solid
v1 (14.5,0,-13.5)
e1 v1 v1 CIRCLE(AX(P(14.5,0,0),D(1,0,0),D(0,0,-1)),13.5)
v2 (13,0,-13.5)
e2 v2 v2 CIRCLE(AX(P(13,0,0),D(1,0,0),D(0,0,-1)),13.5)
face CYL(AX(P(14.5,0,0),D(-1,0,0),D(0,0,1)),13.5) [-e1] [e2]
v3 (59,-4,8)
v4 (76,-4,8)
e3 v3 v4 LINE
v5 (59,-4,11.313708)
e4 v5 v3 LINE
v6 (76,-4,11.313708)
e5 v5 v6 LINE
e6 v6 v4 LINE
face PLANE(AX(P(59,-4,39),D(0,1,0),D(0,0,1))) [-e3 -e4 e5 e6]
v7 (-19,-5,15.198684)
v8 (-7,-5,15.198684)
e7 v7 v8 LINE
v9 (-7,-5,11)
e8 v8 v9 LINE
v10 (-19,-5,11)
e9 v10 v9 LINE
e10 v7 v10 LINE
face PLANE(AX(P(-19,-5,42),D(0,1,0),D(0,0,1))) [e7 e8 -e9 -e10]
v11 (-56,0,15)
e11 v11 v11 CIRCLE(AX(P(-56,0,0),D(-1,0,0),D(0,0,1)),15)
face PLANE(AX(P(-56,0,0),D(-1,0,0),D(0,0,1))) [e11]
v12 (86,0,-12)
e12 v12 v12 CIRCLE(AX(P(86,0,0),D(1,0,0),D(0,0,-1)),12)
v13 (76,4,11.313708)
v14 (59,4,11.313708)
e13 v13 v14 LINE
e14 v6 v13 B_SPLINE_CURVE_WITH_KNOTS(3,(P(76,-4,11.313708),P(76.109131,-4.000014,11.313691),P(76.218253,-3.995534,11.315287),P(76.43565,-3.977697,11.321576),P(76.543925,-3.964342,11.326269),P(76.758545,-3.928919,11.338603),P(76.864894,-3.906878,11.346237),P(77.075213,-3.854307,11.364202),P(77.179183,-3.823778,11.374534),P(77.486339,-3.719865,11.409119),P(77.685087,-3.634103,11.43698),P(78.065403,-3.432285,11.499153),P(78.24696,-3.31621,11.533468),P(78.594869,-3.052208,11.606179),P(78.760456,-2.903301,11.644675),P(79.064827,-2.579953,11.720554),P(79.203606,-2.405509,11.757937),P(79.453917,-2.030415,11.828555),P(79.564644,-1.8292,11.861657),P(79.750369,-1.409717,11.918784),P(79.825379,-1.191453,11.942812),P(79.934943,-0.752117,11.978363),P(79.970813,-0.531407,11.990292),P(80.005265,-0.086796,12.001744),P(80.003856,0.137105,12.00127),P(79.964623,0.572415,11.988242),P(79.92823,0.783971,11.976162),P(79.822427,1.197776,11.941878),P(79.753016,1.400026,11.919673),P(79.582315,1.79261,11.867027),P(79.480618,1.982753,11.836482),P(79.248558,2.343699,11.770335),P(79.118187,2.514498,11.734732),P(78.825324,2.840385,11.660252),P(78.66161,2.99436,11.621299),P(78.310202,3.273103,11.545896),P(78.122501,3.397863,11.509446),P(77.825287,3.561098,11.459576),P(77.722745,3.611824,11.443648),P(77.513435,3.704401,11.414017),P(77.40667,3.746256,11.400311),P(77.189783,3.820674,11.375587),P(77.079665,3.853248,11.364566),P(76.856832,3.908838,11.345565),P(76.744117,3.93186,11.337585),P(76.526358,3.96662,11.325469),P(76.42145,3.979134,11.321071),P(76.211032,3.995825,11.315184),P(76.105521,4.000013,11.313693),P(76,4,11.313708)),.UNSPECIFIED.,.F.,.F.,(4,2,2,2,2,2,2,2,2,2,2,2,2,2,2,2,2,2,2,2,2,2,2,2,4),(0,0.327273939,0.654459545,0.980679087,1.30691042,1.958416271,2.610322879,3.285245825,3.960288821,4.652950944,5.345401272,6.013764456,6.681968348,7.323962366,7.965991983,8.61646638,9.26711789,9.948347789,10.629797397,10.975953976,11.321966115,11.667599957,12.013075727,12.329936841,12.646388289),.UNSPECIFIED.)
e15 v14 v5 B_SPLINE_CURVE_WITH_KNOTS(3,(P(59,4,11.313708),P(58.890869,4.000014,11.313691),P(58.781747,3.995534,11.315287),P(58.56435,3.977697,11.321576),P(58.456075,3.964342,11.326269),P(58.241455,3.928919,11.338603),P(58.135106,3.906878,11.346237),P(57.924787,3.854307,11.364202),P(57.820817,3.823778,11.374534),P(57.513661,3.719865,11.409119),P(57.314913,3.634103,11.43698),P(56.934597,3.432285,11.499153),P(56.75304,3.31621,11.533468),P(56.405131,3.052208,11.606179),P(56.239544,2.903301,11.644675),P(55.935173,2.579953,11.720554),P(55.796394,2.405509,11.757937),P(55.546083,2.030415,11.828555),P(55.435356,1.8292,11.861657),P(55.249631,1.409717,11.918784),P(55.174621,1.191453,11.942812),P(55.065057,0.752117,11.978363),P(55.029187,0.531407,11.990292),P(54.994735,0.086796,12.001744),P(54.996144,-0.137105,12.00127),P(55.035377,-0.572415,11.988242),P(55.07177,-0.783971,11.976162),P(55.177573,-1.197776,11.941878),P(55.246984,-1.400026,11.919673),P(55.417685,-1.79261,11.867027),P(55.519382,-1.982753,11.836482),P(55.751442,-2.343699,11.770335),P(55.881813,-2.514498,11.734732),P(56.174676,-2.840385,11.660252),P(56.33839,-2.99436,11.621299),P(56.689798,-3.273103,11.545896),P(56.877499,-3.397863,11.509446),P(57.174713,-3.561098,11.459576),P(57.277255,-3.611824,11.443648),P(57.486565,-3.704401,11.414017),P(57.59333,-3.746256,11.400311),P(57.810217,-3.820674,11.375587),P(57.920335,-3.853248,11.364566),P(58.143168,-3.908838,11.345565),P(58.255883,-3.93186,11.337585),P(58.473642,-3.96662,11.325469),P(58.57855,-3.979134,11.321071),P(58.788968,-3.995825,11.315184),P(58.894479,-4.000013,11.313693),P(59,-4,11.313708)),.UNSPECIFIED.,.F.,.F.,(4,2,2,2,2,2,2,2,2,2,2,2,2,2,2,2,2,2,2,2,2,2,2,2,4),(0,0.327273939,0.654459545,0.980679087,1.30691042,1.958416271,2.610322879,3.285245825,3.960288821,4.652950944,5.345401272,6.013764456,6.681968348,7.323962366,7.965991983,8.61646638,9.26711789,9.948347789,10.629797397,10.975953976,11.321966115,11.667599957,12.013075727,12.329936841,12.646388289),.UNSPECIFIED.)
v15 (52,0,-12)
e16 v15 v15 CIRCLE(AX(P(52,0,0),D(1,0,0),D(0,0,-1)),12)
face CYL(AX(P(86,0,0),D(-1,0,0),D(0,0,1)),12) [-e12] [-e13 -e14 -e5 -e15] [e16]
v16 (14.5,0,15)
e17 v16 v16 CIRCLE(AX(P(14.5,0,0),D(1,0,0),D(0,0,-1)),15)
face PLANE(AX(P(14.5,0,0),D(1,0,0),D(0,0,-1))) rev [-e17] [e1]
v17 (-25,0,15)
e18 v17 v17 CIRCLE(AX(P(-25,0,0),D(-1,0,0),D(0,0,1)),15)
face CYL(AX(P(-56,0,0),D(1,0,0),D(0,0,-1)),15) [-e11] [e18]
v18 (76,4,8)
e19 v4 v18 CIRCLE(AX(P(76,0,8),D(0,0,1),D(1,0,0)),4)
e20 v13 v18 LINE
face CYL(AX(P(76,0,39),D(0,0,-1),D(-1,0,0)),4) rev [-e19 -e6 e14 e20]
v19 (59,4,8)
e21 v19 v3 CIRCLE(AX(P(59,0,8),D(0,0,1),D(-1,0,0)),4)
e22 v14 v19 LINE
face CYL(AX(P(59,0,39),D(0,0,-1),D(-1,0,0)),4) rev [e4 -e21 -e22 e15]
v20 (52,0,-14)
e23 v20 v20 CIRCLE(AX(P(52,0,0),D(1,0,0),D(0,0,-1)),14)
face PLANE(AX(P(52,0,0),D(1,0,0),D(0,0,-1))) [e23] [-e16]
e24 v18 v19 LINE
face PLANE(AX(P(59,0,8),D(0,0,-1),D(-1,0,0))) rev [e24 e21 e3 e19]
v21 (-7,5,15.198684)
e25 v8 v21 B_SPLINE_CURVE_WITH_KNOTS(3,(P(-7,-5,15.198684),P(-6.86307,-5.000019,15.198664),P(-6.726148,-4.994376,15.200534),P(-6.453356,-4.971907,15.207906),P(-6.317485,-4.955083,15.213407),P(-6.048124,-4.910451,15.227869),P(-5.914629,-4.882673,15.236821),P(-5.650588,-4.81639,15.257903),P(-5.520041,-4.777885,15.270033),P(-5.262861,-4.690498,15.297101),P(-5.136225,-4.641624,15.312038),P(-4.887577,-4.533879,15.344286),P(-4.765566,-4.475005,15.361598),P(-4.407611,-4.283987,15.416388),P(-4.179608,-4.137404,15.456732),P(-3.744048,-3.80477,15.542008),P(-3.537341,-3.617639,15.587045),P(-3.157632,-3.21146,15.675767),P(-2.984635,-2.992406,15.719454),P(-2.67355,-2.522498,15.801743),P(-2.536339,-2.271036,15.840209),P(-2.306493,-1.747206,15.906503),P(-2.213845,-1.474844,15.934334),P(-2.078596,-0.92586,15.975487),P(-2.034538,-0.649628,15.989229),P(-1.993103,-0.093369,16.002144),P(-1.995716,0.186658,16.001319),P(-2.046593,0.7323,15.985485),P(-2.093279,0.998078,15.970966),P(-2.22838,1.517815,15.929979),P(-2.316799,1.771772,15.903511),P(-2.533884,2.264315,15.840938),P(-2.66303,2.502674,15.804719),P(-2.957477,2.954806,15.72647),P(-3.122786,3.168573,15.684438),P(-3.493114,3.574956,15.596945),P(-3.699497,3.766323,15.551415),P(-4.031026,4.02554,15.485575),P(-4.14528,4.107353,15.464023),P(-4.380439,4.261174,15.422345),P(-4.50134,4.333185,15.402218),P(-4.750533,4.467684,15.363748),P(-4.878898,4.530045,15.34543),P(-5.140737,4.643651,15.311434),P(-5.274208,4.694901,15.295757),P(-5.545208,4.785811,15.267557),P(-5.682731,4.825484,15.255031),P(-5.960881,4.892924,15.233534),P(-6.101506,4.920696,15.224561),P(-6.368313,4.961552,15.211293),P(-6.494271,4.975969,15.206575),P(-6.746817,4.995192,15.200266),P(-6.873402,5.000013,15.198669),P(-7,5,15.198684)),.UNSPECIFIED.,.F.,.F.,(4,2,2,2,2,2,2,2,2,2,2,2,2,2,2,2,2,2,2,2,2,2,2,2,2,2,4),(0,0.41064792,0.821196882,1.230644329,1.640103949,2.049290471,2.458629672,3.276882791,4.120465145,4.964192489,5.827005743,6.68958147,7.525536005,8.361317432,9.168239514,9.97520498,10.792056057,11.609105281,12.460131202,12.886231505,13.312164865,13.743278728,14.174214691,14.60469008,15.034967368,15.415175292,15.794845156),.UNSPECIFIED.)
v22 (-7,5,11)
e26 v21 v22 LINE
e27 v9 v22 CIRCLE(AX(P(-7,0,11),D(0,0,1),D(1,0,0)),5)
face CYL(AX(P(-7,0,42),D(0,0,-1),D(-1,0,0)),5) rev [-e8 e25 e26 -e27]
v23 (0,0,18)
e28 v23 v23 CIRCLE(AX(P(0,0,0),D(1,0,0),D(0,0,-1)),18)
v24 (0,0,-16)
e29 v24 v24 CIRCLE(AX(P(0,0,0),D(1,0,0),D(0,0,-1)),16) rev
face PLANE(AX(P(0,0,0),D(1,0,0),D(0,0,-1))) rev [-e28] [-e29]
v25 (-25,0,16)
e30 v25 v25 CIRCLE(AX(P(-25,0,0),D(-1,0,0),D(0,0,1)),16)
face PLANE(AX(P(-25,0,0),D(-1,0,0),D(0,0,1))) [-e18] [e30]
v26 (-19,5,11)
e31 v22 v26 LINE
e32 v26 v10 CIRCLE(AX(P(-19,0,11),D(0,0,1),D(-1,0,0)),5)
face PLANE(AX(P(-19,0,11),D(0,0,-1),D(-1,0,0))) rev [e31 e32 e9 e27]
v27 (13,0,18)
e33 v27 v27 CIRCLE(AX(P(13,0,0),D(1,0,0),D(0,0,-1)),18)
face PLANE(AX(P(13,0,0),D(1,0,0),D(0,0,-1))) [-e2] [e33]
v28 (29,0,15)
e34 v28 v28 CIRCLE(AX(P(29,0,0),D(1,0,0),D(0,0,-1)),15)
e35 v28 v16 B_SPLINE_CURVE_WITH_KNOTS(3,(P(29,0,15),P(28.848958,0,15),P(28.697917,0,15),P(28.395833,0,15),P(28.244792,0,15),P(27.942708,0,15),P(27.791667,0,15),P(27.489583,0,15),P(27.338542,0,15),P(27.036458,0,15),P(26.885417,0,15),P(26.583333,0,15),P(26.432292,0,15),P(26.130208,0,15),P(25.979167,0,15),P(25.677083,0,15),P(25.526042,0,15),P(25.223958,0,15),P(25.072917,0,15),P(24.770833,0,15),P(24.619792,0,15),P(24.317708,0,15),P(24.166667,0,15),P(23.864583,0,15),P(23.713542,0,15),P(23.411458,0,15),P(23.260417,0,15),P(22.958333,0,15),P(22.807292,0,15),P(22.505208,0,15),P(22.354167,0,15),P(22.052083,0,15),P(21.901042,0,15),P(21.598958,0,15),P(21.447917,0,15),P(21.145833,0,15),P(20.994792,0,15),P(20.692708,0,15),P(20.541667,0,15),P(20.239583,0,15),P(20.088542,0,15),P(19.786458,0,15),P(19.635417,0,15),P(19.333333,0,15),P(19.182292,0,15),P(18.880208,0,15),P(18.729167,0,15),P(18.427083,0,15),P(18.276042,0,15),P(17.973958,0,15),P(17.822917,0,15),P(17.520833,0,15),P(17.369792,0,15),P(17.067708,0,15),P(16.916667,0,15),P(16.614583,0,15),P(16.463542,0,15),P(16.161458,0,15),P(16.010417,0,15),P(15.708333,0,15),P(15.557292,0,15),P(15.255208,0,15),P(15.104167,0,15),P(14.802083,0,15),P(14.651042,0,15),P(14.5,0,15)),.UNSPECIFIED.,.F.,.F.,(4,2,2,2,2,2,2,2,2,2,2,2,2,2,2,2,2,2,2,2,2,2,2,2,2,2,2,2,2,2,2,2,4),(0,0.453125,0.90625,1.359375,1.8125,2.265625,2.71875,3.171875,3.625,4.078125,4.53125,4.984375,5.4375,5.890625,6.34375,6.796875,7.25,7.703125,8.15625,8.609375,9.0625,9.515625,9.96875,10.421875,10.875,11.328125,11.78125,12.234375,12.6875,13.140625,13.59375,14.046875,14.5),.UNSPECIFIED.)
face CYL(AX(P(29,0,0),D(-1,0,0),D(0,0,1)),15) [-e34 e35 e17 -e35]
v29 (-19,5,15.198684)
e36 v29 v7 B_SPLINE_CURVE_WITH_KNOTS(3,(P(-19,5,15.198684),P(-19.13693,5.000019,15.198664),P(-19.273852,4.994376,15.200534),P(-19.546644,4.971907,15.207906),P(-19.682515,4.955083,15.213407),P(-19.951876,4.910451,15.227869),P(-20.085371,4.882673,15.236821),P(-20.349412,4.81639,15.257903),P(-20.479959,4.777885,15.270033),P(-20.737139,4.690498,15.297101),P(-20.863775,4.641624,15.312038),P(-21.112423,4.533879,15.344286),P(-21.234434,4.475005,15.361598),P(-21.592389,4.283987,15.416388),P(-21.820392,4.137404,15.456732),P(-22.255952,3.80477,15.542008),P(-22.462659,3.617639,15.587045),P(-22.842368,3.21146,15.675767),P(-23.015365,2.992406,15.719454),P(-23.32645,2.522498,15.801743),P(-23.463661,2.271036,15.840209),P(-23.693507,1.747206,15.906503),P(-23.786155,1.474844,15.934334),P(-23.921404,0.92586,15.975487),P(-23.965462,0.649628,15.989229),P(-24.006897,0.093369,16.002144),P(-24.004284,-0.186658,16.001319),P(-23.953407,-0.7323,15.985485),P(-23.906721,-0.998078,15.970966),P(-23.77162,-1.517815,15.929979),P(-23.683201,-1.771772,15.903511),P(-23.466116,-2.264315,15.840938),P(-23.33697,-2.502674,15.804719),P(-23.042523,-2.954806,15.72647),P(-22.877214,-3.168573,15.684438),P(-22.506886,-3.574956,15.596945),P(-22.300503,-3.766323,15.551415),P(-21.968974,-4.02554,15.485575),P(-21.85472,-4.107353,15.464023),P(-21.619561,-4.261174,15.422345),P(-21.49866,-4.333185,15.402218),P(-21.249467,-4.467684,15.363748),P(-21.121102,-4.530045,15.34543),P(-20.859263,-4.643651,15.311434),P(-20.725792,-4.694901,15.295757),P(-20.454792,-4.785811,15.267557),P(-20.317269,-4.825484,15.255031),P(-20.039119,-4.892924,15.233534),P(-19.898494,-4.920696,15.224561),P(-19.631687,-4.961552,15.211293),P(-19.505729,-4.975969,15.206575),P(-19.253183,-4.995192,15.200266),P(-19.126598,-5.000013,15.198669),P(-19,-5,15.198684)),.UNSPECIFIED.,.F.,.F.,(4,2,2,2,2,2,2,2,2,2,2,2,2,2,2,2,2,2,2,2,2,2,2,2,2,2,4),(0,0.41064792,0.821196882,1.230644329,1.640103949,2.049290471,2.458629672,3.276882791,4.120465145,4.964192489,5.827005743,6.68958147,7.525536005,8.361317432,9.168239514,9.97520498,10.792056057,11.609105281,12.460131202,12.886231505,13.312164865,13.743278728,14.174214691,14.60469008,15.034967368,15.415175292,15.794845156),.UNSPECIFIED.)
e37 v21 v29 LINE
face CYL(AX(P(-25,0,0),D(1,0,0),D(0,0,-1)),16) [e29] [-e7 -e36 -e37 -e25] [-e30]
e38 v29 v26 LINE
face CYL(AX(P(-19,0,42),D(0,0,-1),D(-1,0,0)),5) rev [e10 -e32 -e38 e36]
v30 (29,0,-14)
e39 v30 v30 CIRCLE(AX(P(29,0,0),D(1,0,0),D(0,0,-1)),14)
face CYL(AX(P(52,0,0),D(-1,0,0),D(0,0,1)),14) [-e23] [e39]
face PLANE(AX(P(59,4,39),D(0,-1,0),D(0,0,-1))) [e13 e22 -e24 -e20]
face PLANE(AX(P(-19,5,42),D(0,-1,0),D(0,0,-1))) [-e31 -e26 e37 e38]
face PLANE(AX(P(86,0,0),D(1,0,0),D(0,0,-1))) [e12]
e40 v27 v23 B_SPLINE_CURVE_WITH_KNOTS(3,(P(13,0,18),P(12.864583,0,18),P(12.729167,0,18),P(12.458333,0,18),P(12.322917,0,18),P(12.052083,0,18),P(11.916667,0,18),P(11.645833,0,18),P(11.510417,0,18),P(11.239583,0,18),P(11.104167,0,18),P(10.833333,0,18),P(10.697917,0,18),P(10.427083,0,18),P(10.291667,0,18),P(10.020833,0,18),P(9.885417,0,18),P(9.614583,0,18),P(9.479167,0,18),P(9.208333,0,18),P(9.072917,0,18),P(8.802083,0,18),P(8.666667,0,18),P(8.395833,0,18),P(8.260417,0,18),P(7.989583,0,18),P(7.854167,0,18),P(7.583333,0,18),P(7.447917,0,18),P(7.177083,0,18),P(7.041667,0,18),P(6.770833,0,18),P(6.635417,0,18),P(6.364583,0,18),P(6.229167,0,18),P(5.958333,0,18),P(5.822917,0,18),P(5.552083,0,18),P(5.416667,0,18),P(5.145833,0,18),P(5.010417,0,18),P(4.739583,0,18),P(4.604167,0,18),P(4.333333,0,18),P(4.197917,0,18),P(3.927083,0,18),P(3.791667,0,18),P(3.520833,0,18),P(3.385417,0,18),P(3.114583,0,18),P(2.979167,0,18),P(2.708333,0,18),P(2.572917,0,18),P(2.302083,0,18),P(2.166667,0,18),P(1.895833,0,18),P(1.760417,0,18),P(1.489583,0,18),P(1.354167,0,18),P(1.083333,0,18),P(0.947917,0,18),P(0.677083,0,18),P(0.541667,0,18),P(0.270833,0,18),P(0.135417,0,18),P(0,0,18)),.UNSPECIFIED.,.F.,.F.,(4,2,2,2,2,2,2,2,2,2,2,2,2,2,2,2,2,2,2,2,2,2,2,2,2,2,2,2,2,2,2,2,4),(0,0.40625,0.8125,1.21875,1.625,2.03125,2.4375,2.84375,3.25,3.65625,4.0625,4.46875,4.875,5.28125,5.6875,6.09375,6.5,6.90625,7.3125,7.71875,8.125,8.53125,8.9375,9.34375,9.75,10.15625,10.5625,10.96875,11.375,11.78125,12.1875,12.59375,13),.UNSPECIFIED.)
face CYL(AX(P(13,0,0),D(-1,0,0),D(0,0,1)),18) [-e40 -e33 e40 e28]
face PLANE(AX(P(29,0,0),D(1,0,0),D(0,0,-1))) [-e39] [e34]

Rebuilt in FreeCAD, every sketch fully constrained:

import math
import FreeCAD as App
import Part
import Sketcher
Q = App.Units.Quantity

doc = App.newDocument("Part")
body = doc.addObject("PartDesign::Body", "Body")

# Sketch on YZ plane
sketch1 = body.newObject("Sketcher::SketchObject", "Sketch")
sketch1.AttachmentSupport = (doc.getObject("YZ_Plane"), [""])
sketch1.MapMode = "FlatFace"
sketch1.addGeometry(Part.Circle(App.Vector(0, 0, 0), App.Vector(0, 0, 1), 18), False)
sketch1.addConstraint(Sketcher.Constraint("Coincident", 0, 3, -1, 1))
sketch1.addConstraint(Sketcher.Constraint("Diameter", 0, Q("36 mm")))
pad1 = body.newObject("PartDesign::Pad", "Pad")
pad1.Profile = sketch1
pad1.Length = 13

# Sketch on YZ plane
sketch2 = body.newObject("Sketcher::SketchObject", "Sketch001")
sketch2.AttachmentSupport = (doc.getObject("YZ_Plane"), [""])
sketch2.MapMode = "FlatFace"
sketch2.AttachmentOffset = App.Placement(App.Vector(0, 0, 13), App.Rotation())
sketch2.addGeometry(Part.Circle(App.Vector(0, 0, 0), App.Vector(0, 0, 1), 14), False)
sketch2.addConstraint(Sketcher.Constraint("Coincident", 0, 3, -1, 1))
sketch2.addConstraint(Sketcher.Constraint("Diameter", 0, Q("27 mm")))
pad2 = body.newObject("PartDesign::Pad", "Pad001")
pad2.Profile = sketch2
pad2.Length = 1.5

# Sketch on YZ plane
sketch3 = body.newObject("Sketcher::SketchObject", "Sketch002")
sketch3.AttachmentSupport = (doc.getObject("YZ_Plane"), [""])
sketch3.MapMode = "FlatFace"
sketch3.AttachmentOffset = App.Placement(App.Vector(0, 0, 14.5), App.Rotation())
sketch3.addGeometry(Part.Circle(App.Vector(0, 0, 0), App.Vector(0, 0, 1), 15), False)
sketch3.addConstraint(Sketcher.Constraint("Coincident", 0, 3, -1, 1))
sketch3.addConstraint(Sketcher.Constraint("Diameter", 0, Q("30 mm")))
pad3 = body.newObject("PartDesign::Pad", "Pad002")
pad3.Profile = sketch3
pad3.Length = 14.5

# Sketch on YZ plane
sketch4 = body.newObject("Sketcher::SketchObject", "Sketch003")
sketch4.AttachmentSupport = (doc.getObject("YZ_Plane"), [""])
sketch4.MapMode = "FlatFace"
sketch4.AttachmentOffset = App.Placement(App.Vector(0, 0, 29), App.Rotation())
sketch4.addGeometry(Part.Circle(App.Vector(0, 0, 0), App.Vector(0, 0, 1), 14), False)
sketch4.addConstraint(Sketcher.Constraint("Coincident", 0, 3, -1, 1))
sketch4.addConstraint(Sketcher.Constraint("Diameter", 0, Q("28 mm")))
pad4 = body.newObject("PartDesign::Pad", "Pad003")
pad4.Profile = sketch4
pad4.Length = 23

# Sketch on YZ plane
sketch5 = body.newObject("Sketcher::SketchObject", "Sketch004")
sketch5.AttachmentSupport = (doc.getObject("YZ_Plane"), [""])
sketch5.MapMode = "FlatFace"
sketch5.AttachmentOffset = App.Placement(App.Vector(0, 0, 52), App.Rotation())
sketch5.addGeometry(Part.Circle(App.Vector(0, 0, 0), App.Vector(0, 0, 1), 12), False)
sketch5.addConstraint(Sketcher.Constraint("Coincident", 0, 3, -1, 1))
sketch5.addConstraint(Sketcher.Constraint("Diameter", 0, Q("24 mm")))
pad5 = body.newObject("PartDesign::Pad", "Pad004")
pad5.Profile = sketch5
pad5.Length = 34

# Sketch on YZ plane
sketch6 = body.newObject("Sketcher::SketchObject", "Sketch005")
sketch6.AttachmentSupport = (doc.getObject("YZ_Plane"), [""])
sketch6.MapMode = "FlatFace"
sketch6.addGeometry(Part.Circle(App.Vector(0, 0, 0), App.Vector(0, 0, 1), 16), False)
sketch6.addConstraint(Sketcher.Constraint("Coincident", 0, 3, -1, 1))
sketch6.addConstraint(Sketcher.Constraint("Diameter", 0, Q("32 mm")))
pad6 = body.newObject("PartDesign::Pad", "Pad005")
pad6.Profile = sketch6
pad6.Length = 25
pad6.Reversed = True

# Sketch on YZ plane
sketch7 = body.newObject("Sketcher::SketchObject", "Sketch006")
sketch7.AttachmentSupport = (doc.getObject("YZ_Plane"), [""])
sketch7.MapMode = "FlatFace"
sketch7.AttachmentOffset = App.Placement(App.Vector(0, 0, -56), App.Rotation())
sketch7.addGeometry(Part.Circle(App.Vector(0, 0, 0), App.Vector(0, 0, 1), 15), False)
sketch7.addConstraint(Sketcher.Constraint("Coincident", 0, 3, -1, 1))
sketch7.addConstraint(Sketcher.Constraint("Diameter", 0, Q("30 mm")))
pad7 = body.newObject("PartDesign::Pad", "Pad006")
pad7.Profile = sketch7
pad7.Length = 31

# Sketch on XY plane
sketch8 = body.newObject("Sketcher::SketchObject", "Sketch007")
sketch8.AttachmentSupport = (doc.getObject("XY_Plane"), [""])
sketch8.MapMode = "FlatFace"
sketch8.AttachmentOffset = App.Placement(App.Vector(0, 0, 11), App.Rotation())
sketch8.addGeometry(Part.LineSegment(App.Vector(-19, -5, 0), App.Vector(-7, -5, 0)), False)
sketch8.addGeometry(Part.ArcOfCircle(Part.Circle(App.Vector(-7, 0, 0), App.Vector(0, 0, 1), 5), math.radians(-90), math.radians(90)), False)
sketch8.addGeometry(Part.LineSegment(App.Vector(-7, 5, 0), App.Vector(-19, 5, 0)), False)
sketch8.addGeometry(Part.ArcOfCircle(Part.Circle(App.Vector(-19, 0, 0), App.Vector(0, 0, 1), 5), math.radians(90), math.radians(270)), False)
sketch8.addConstraint(Sketcher.Constraint("Tangent", 0, 2, 1, 1))
sketch8.addConstraint(Sketcher.Constraint("Tangent", 1, 2, 2, 1))
sketch8.addConstraint(Sketcher.Constraint("Tangent", 2, 2, 3, 1))
sketch8.addConstraint(Sketcher.Constraint("Tangent", 3, 2, 0, 1))
sketch8.addConstraint(Sketcher.Constraint("Horizontal", 0))
sketch8.addConstraint(Sketcher.Constraint("Horizontal", 2))
sketch8.addConstraint(Sketcher.Constraint("PointOnObject", 1, 3, -1))
sketch8.addConstraint(Sketcher.Constraint("Radius", 1, Q("5 mm")))
sketch8.addConstraint(Sketcher.Constraint("DistanceX", 0, 1, 0, 2, Q("12 mm")))
sketch8.addConstraint(Sketcher.Constraint("DistanceX", 1, 3, -1, 1, Q("7 mm")))
pocket1 = body.newObject("PartDesign::Pocket", "Pocket")
pocket1.Profile = sketch8
pocket1.Length = 31
pocket1.Reversed = True

# Sketch on XY plane
sketch9 = body.newObject("Sketcher::SketchObject", "Sketch008")
sketch9.AttachmentSupport = (doc.getObject("XY_Plane"), [""])
sketch9.MapMode = "FlatFace"
sketch9.AttachmentOffset = App.Placement(App.Vector(0, 0, 8), App.Rotation())
sketch9.addGeometry(Part.LineSegment(App.Vector(59, -4, 0), App.Vector(76, -4, 0)), False)
sketch9.addGeometry(Part.ArcOfCircle(Part.Circle(App.Vector(76, 0, 0), App.Vector(0, 0, 1), 4), math.radians(-90), math.radians(90)), False)
sketch9.addGeometry(Part.LineSegment(App.Vector(76, 4, 0), App.Vector(59, 4, 0)), False)
sketch9.addGeometry(Part.ArcOfCircle(Part.Circle(App.Vector(59, 0, 0), App.Vector(0, 0, 1), 4), math.radians(90), math.radians(270)), False)
sketch9.addConstraint(Sketcher.Constraint("Tangent", 0, 2, 1, 1))
sketch9.addConstraint(Sketcher.Constraint("Tangent", 1, 2, 2, 1))
sketch9.addConstraint(Sketcher.Constraint("Tangent", 2, 2, 3, 1))
sketch9.addConstraint(Sketcher.Constraint("Tangent", 3, 2, 0, 1))
sketch9.addConstraint(Sketcher.Constraint("Horizontal", 0))
sketch9.addConstraint(Sketcher.Constraint("Horizontal", 2))
sketch9.addConstraint(Sketcher.Constraint("PointOnObject", 1, 3, -1))
sketch9.addConstraint(Sketcher.Constraint("Radius", 1, Q("4 mm")))
sketch9.addConstraint(Sketcher.Constraint("DistanceX", 0, 1, 0, 2, Q("17 mm")))
sketch9.addConstraint(Sketcher.Constraint("DistanceX", -1, 1, 1, 3, Q("76 mm")))
pocket2 = body.newObject("PartDesign::Pocket", "Pocket001")
pocket2.Profile = sketch9
pocket2.Length = 31
pocket2.Reversed = True

doc.recompute()
